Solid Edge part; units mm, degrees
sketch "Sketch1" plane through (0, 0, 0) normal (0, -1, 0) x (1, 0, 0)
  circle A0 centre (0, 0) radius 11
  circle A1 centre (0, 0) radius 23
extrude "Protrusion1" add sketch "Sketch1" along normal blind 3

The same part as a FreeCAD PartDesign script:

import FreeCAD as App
import Part
import Sketcher

V = App.Vector

doc = App.newDocument("Part")
body = doc.addObject("PartDesign::Body", "Body")

# Sketch on XZ plane
sketch1 = body.newObject("Sketcher::SketchObject", "Sketch")
sketch1.AttachmentSupport = (doc.getObject("XZ_Plane"), [""])
sketch1.MapMode = "FlatFace"
sketch1.addGeometry(Part.Circle(V(0, 0, 0), V(0, 0, 1), 23), False)
sketch1.addGeometry(Part.Circle(V(0, 0, 0), V(0, 0, 1), 11), False)
sketch1.addConstraint(Sketcher.Constraint("Coincident", 0, 3, -1, 1))
sketch1.addConstraint(Sketcher.Constraint("Coincident", 1, 3, -1, 1))
sketch1.addConstraint(Sketcher.Constraint("Diameter", 0, 46.0))
sketch1.addConstraint(Sketcher.Constraint("Diameter", 1, 22.0))
pad1 = body.newObject("PartDesign::Pad", "Pad")
pad1.Profile = sketch1
pad1.Length = 3

doc.recompute()
